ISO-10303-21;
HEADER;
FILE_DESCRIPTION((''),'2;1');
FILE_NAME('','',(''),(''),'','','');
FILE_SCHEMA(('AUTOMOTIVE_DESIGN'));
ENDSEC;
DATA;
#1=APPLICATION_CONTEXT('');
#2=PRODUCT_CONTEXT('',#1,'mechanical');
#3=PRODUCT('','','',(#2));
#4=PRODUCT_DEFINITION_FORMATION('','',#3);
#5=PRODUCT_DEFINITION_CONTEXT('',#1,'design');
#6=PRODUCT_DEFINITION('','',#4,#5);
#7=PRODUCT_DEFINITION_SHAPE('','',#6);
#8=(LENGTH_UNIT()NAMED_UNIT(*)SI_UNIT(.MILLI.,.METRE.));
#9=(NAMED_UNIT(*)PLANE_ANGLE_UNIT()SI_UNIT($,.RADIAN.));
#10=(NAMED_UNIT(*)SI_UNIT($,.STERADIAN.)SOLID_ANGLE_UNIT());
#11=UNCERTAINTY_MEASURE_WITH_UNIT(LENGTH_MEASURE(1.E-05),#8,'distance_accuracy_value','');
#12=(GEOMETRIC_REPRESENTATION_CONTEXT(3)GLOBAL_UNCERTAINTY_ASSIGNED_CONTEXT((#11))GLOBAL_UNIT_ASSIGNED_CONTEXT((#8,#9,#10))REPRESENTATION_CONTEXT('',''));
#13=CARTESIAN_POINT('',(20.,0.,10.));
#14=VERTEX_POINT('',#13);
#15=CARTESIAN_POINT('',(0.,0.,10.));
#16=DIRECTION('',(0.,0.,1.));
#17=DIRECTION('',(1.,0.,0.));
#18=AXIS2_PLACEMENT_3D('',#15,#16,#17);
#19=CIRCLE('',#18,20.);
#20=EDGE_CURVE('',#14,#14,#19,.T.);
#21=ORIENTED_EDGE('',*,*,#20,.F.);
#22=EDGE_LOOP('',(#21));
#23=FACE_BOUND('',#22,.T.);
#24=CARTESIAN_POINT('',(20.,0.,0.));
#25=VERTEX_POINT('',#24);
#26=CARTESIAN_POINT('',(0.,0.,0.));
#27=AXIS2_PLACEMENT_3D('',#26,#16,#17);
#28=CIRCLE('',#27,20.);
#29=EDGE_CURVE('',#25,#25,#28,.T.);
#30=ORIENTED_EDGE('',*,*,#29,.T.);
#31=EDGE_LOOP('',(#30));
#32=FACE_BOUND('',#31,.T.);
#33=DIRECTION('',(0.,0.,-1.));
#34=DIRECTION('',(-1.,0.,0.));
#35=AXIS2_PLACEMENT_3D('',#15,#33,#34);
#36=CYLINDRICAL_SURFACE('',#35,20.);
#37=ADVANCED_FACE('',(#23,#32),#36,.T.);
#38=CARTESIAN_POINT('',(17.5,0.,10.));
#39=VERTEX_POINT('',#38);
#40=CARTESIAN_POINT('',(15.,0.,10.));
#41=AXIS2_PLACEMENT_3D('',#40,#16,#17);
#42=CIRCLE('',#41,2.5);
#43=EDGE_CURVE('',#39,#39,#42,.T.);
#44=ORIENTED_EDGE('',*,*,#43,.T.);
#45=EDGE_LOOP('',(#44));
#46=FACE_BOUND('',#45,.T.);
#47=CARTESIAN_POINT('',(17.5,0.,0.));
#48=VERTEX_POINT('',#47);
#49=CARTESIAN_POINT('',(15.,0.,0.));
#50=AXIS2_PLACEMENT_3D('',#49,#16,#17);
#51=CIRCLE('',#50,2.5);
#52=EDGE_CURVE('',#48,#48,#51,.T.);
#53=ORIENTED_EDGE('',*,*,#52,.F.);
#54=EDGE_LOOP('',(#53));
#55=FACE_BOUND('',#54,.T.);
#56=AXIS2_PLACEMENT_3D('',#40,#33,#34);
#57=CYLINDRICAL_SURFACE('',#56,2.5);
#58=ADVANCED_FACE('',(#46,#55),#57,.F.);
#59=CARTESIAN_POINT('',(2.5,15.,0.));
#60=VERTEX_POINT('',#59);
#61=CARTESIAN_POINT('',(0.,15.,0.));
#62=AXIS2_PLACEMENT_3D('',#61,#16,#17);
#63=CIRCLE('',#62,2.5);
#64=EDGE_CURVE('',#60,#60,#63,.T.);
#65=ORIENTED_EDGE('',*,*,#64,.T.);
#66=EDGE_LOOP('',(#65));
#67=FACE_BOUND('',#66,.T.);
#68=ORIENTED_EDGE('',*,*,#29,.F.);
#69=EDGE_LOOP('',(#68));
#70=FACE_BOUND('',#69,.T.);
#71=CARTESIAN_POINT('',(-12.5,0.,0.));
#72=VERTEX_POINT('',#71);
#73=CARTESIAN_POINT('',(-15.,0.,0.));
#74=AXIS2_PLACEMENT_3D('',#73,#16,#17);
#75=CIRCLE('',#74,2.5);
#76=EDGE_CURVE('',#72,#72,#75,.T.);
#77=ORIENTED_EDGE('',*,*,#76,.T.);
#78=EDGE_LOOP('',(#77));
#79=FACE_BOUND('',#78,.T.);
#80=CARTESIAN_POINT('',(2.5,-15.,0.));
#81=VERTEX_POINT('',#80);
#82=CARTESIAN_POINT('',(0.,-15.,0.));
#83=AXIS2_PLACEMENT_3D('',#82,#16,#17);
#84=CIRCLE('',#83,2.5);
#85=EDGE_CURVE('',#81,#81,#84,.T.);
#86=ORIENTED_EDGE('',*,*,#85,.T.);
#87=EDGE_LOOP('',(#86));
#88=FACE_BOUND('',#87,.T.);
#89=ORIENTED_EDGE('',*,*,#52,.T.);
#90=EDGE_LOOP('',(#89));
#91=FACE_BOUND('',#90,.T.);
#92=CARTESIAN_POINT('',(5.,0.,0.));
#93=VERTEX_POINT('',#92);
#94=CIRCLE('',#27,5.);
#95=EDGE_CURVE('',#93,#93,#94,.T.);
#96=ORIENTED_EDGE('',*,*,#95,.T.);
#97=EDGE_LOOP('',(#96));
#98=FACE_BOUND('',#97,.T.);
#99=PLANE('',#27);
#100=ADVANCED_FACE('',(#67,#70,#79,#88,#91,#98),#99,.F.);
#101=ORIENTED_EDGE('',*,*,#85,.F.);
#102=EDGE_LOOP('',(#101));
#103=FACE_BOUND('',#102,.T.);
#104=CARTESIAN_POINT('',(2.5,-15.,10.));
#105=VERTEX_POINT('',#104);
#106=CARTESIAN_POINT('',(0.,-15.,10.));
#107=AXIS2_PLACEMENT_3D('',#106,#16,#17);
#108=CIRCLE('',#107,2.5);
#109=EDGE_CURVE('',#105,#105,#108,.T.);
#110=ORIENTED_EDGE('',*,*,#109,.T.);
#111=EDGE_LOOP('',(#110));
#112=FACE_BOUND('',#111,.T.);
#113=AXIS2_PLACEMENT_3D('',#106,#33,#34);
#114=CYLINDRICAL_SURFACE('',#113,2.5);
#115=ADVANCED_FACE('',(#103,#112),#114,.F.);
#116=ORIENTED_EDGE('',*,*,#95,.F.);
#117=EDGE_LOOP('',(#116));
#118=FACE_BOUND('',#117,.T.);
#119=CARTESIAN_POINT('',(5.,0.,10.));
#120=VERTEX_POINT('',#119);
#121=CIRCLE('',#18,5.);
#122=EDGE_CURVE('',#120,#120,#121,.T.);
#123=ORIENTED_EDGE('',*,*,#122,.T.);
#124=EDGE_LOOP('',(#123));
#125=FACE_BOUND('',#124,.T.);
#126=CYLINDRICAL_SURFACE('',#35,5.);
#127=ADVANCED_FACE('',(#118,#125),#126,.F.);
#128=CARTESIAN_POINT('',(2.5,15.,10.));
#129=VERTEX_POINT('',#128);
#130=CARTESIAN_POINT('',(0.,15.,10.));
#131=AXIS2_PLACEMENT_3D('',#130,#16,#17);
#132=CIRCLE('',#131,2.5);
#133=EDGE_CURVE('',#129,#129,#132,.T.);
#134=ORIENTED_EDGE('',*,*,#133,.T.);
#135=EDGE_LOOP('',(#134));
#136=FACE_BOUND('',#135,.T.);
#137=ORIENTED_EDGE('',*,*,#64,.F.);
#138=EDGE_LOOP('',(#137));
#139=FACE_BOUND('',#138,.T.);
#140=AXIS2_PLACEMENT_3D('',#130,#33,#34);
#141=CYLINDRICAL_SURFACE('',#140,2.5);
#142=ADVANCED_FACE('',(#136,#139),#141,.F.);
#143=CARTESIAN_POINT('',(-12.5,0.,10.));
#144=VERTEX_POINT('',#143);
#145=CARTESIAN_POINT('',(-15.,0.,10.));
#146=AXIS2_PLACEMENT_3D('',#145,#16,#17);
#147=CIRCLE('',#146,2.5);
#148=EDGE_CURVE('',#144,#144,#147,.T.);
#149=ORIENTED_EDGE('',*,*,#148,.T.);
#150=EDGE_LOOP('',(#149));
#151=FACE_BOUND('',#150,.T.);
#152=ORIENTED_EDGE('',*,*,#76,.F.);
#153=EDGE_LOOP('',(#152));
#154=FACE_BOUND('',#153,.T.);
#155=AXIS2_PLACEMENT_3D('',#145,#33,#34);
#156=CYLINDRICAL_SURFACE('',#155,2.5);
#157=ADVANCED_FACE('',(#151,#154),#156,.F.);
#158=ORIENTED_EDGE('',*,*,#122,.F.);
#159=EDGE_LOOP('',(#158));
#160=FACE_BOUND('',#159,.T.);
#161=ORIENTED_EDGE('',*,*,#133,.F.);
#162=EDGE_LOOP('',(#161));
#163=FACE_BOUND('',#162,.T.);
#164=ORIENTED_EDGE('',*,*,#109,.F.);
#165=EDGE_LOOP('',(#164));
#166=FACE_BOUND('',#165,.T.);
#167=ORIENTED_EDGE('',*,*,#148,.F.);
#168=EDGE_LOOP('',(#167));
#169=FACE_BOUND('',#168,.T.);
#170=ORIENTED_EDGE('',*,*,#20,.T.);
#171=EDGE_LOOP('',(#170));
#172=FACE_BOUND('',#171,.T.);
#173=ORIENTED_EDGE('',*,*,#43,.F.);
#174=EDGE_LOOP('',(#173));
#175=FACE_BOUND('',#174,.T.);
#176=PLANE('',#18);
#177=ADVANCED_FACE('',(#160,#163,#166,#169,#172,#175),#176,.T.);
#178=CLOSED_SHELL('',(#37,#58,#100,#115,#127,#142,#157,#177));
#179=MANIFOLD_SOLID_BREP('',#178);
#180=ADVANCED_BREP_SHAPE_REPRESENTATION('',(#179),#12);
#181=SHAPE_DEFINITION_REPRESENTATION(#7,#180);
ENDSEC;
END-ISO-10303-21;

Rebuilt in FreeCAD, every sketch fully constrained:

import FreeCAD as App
import Part
import Sketcher
from FreeCAD import Vector

doc = App.newDocument("Part")
params = doc.addObject("Spreadsheet::Sheet", "Params")
for row, (alias, value) in enumerate([
    ("sketch1_diameter", "40 mm"),
    ("sketch1_diameter2", "5 mm"),
    ("sketch1_diameter3", "10 mm"),
    ("pad1_length", "10 mm"),
], start=1):
    params.set(f"A{row}", alias)
    params.set(f"B{row}", "=" + value)
    params.setAlias(f"B{row}", alias)

body = doc.addObject("PartDesign::Body", "Body")

sketch1 = doc.addObject("Sketcher::SketchObject", "Sketch")
body.addObject(sketch1)
sketch1.AttachmentSupport = (doc.XY_Plane, [""])
sketch1.MapMode = "FlatFace"
sketch1.addGeometry(Part.Circle(Vector(0, 0, 0), Vector(0, 0, 1), 20), False)
sketch1.addGeometry(Part.Circle(Vector(0, -15, 0), Vector(0, 0, 1), 2.5), False)
sketch1.addGeometry(Part.Circle(Vector(-15, 0, 0), Vector(0, 0, 1), 2.5), False)
sketch1.addGeometry(Part.Circle(Vector(0, 0, 0), Vector(0, 0, 1), 5), False)
sketch1.addGeometry(Part.Circle(Vector(15, 0, 0), Vector(0, 0, 1), 2.5), False)
sketch1.addGeometry(Part.Circle(Vector(0, 15, 0), Vector(0, 0, 1), 2.5), False)
sketch1.addConstraint(Sketcher.Constraint("Coincident", 0, 3, -1, 1))
sketch1.addConstraint(Sketcher.Constraint("Coincident", 3, 3, -1, 1))
sketch1.addConstraint(Sketcher.Constraint("Equal", 1, 2))
sketch1.addConstraint(Sketcher.Constraint("Equal", 2, 4))
sketch1.addConstraint(Sketcher.Constraint("Equal", 4, 5))
sketch1.addConstraint(Sketcher.Constraint("Symmetric", 2, 3, 4, 3, -1, 1))
sketch1.addConstraint(Sketcher.Constraint("Symmetric", 1, 3, 5, 3, -1, 1))
sketch1.addConstraint(Sketcher.Constraint("PointOnObject", 1, 3, -2))
sketch1.addConstraint(Sketcher.Constraint("PointOnObject", 2, 3, -1))
sketch1.addConstraint(Sketcher.Constraint("Diameter", 0, 40.0))
sketch1.addConstraint(Sketcher.Constraint("Diameter", 1, 5.0))
sketch1.addConstraint(Sketcher.Constraint("Diameter", 3, 10.0))
sketch1.addConstraint(Sketcher.Constraint("DistanceY", 1, 3, -1, 1, 15.0))
sketch1.addConstraint(Sketcher.Constraint("DistanceX", 2, 3, -1, 1, 15.0))
sketch1.setExpression("Constraints[9]", "Params.sketch1_diameter")
sketch1.setExpression("Constraints[10]", "Params.sketch1_diameter2")
sketch1.setExpression("Constraints[11]", "Params.sketch1_diameter3")
pad1 = doc.addObject("PartDesign::Pad", "Pad")
body.addObject(pad1)
pad1.Profile = sketch1
pad1.setExpression("Length", "Params.pad1_length")

doc.recompute()
